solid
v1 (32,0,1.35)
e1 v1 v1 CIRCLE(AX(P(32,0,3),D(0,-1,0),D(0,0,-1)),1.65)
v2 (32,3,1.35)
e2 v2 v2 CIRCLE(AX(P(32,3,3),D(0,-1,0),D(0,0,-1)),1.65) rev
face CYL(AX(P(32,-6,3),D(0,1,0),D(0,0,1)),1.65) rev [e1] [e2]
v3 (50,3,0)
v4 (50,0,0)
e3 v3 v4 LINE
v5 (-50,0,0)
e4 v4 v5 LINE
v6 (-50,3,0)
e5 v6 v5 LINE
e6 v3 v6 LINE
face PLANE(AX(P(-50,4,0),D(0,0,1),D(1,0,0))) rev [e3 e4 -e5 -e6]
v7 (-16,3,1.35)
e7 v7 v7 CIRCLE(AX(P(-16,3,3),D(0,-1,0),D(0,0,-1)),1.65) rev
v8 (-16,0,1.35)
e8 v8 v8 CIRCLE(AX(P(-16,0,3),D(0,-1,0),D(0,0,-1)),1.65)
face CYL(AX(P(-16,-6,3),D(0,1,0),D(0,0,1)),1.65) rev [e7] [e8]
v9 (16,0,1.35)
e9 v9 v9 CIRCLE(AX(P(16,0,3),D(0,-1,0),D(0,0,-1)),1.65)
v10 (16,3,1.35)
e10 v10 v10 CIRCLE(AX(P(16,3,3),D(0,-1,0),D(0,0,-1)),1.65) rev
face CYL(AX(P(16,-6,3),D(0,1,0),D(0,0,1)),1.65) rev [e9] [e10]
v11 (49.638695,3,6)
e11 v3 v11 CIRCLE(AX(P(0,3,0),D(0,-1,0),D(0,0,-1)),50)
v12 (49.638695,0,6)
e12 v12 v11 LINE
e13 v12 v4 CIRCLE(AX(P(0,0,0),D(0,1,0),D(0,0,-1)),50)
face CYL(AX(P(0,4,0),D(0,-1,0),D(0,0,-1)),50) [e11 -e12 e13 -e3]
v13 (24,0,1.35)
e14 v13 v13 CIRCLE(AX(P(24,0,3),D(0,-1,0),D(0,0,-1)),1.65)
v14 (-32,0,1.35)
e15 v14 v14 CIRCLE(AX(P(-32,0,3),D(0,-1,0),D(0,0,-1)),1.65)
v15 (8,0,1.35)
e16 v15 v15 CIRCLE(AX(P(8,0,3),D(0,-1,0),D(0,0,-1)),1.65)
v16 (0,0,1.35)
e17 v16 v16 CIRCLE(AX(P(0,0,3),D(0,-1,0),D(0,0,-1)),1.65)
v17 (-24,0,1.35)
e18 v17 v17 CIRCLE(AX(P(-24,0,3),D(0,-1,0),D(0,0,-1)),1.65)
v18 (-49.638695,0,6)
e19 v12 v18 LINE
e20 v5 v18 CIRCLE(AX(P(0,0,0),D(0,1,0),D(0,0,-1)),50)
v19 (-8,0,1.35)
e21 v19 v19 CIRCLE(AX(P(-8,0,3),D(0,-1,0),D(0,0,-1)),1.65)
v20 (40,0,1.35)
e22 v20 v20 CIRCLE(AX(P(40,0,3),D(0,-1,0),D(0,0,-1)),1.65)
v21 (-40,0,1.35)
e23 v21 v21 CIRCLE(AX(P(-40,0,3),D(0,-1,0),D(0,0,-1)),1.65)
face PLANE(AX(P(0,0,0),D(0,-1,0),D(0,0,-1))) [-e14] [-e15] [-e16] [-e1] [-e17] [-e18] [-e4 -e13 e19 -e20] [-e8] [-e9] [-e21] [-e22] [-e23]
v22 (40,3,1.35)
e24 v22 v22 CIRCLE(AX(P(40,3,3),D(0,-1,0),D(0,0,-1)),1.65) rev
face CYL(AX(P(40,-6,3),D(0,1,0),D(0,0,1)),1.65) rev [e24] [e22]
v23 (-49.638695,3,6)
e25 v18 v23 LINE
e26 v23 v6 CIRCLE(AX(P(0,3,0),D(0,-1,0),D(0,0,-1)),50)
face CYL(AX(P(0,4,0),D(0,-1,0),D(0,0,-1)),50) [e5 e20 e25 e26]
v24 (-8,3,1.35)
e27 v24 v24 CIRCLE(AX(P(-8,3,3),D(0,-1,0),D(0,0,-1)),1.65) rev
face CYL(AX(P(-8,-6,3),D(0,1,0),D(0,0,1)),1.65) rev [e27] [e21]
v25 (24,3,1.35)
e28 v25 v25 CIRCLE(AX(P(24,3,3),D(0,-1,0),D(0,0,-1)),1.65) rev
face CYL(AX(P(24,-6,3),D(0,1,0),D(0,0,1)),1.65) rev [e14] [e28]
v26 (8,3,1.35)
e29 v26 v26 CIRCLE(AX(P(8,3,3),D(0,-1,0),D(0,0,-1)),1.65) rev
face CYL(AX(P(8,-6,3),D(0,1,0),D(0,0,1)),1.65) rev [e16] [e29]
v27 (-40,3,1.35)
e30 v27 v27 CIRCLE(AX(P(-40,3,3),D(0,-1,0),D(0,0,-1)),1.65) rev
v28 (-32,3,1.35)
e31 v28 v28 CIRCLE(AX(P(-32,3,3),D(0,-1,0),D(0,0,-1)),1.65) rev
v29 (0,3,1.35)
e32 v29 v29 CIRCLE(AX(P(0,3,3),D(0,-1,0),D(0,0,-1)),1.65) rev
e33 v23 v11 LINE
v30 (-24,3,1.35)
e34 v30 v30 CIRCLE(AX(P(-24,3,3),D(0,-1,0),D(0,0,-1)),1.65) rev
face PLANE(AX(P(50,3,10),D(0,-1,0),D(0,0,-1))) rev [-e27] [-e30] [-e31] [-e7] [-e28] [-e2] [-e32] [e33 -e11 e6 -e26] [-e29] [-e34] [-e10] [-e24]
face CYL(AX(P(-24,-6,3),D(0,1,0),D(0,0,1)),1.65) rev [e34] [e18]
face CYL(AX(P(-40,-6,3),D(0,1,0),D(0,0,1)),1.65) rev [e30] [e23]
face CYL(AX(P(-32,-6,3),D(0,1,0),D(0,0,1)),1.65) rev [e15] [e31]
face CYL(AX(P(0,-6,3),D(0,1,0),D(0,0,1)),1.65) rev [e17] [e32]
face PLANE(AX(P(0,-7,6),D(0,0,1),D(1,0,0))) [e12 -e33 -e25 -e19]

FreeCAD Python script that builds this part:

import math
import FreeCAD as App
import Part
import Sketcher

V = App.Vector
Q = App.Units.Quantity

doc = App.newDocument("Part")
body = doc.addObject("PartDesign::Body", "Body")

# Sketch on XZ plane
sketch1 = body.newObject("Sketcher::SketchObject", "Sketch")
sketch1.AttachmentSupport = (doc.getObject("XZ_Plane"), [""])
sketch1.MapMode = "FlatFace"
sketch1.addGeometry([
    Part.LineSegment(V(50, 0, 0), V(-50, 0, 0)),
    Part.ArcOfCircle(Part.Circle(V(0, 0, 0), V(0, 0, 1), 50), math.radians(0), math.radians(180)),
], False)
sketch1.addConstraint([
    Sketcher.Constraint("Coincident", 0, 1, 1, 1),
    Sketcher.Constraint("Coincident", 1, 2, 0, 2),
    Sketcher.Constraint("Horizontal", 0),
    Sketcher.Constraint("Coincident", 1, 3, -1, 1),
    Sketcher.Constraint("PointOnObject", 0, 1, -1),
    Sketcher.Constraint("Radius", 1, Q("50 mm")),
])
pad1 = body.newObject("PartDesign::Pad", "Pad")
pad1.Profile = sketch1
pad1.Length = 4
pad1.Reversed = True

# Sketch on XZ plane
sketch2 = body.newObject("Sketcher::SketchObject", "Sketch001")
sketch2.AttachmentSupport = (doc.getObject("XZ_Plane"), [""])
sketch2.MapMode = "FlatFace"
sketch2.AttachmentOffset = App.Placement(V(0, 0, -4), App.Rotation())
sketch2.addGeometry([
    Part.LineSegment(V(10, 11, 0), V(-30, 11, 0)),
    Part.LineSegment(V(-30, 11, 0), V(-30, 31, 0)),
    Part.LineSegment(V(-30, 31, 0), V(10, 31, 0)),
    Part.LineSegment(V(10, 31, 0), V(10, 11, 0)),
], False)
sketch2.addConstraint([
    Sketcher.Constraint("Coincident", 0, 2, 1, 1),
    Sketcher.Constraint("Coincident", 1, 2, 2, 1),
    Sketcher.Constraint("Coincident", 2, 2, 3, 1),
    Sketcher.Constraint("Coincident", 3, 2, 0, 1),
    Sketcher.Constraint("Horizontal", 0),
    Sketcher.Constraint("Vertical", 1),
    Sketcher.Constraint("Horizontal", 2),
    Sketcher.Constraint("Vertical", 3),
    Sketcher.Constraint("DistanceX", 0, 2, 0, 1, Q("40 mm")),
    Sketcher.Constraint("DistanceY", 1, 1, 1, 2, Q("20 mm")),
    Sketcher.Constraint("DistanceX", 0, 2, -1, 1, Q("30 mm")),
    Sketcher.Constraint("DistanceY", -1, 1, 0, 2, Q("10.623044 mm")),
])
pocket1 = body.newObject("PartDesign::Pocket", "Pocket")
pocket1.Profile = sketch2
pocket1.Length = 10
pocket1.Reversed = True

# Sketch on XZ plane
sketch3 = body.newObject("Sketcher::SketchObject", "Sketch002")
sketch3.AttachmentSupport = (doc.getObject("XZ_Plane"), [""])
sketch3.MapMode = "FlatFace"
sketch3.AttachmentOffset = App.Placement(V(0, 0, -4), App.Rotation())
sketch3.addGeometry([
    Part.Circle(V(-34.8, 15.6, 0), V(0, 0, 1), 2.2),
    Part.Circle(V(-34.8, 25.6, 0), V(0, 0, 1), 2.2),
    Part.Circle(V(14.8, 25.6, 0), V(0, 0, 1), 2.2),
    Part.Circle(V(14.8, 15.6, 0), V(0, 0, 1), 2.2),
], False)
sketch3.addConstraint([
    Sketcher.Constraint("Equal", 0, 1),
    Sketcher.Constraint("Equal", 1, 2),
    Sketcher.Constraint("Equal", 2, 3),
    Sketcher.Constraint("Horizontal", 1, 3, 2, 3),
    Sketcher.Constraint("Horizontal", 0, 3, 3, 3),
    Sketcher.Constraint("Vertical", 0, 3, 1, 3),
    Sketcher.Constraint("Vertical", 2, 3, 3, 3),
    Sketcher.Constraint("Diameter", 0, Q("4.5 mm")),
    Sketcher.Constraint("DistanceY", 0, 3, 1, 3, Q("10 mm")),
    Sketcher.Constraint("DistanceX", 1, 3, 2, 3, Q("49.5 mm")),
    Sketcher.Constraint("DistanceX", 0, 3, -1, 1, Q("34.75 mm")),
    Sketcher.Constraint("DistanceY", -1, 1, 0, 3, Q("15.623044 mm")),
])
pocket2 = body.newObject("PartDesign::Pocket", "Pocket001")
pocket2.Profile = sketch3
pocket2.Length = 10
pocket2.Reversed = True

# Sketch on XZ plane
sketch4 = body.newObject("Sketcher::SketchObject", "Sketch003")
sketch4.AttachmentSupport = (doc.getObject("XZ_Plane"), [""])
sketch4.MapMode = "FlatFace"
sketch4.AttachmentOffset = App.Placement(V(0, 0, -4), App.Rotation())
sketch4.addGeometry([
    Part.Circle(V(0, 3, 0), V(0, 0, 1), 1.6),  # 0
    Part.Circle(V(8, 3, 0), V(0, 0, 1), 1.6),  # 1
    Part.Circle(V(16, 3, 0), V(0, 0, 1), 1.6),  # 2
    Part.Circle(V(24, 3, 0), V(0, 0, 1), 1.6),  # 3
    Part.Circle(V(32, 3, 0), V(0, 0, 1), 1.6),  # 4
    Part.Circle(V(40, 3, 0), V(0, 0, 1), 1.6),  # 5
    Part.Circle(V(-40, 3, 0), V(0, 0, 1), 1.6),  # 6
    Part.Circle(V(-32, 3, 0), V(0, 0, 1), 1.6),  # 7
    Part.Circle(V(-24, 3, 0), V(0, 0, 1), 1.6),  # 8
    Part.Circle(V(-16, 3, 0), V(0, 0, 1), 1.6),  # 9
    Part.Circle(V(-8, 3, 0), V(0, 0, 1), 1.6),  # 10
], False)
sketch4.addConstraint([
    Sketcher.Constraint("Equal", 0, 1),
    Sketcher.Constraint("Equal", 1, 2),
    Sketcher.Constraint("Equal", 2, 3),
    Sketcher.Constraint("Equal", 3, 4),
    Sketcher.Constraint("Equal", 4, 5),
    Sketcher.Constraint("Equal", 5, 6),
    Sketcher.Constraint("Equal", 6, 7),
    Sketcher.Constraint("Equal", 7, 8),
    Sketcher.Constraint("Equal", 8, 9),
    Sketcher.Constraint("Equal", 9, 10),
    Sketcher.Constraint("Symmetric", 5, 3, 6, 3, -2),
    Sketcher.Constraint("Symmetric", 4, 3, 7, 3, -2),
    Sketcher.Constraint("Symmetric", 3, 3, 8, 3, -2),
    Sketcher.Constraint("Symmetric", 2, 3, 9, 3, -2),
    Sketcher.Constraint("Symmetric", 1, 3, 10, 3, -2),
    Sketcher.Constraint("PointOnObject", 0, 3, -2),
    Sketcher.Constraint("Horizontal", 0, 3, 1, 3),
    Sketcher.Constraint("Horizontal", 1, 3, 2, 3),
    Sketcher.Constraint("Horizontal", 2, 3, 3, 3),
    Sketcher.Constraint("Horizontal", 3, 3, 4, 3),
    Sketcher.Constraint("Horizontal", 4, 3, 5, 3),
    Sketcher.Constraint("Diameter", 0, Q("3.3 mm")),
    Sketcher.Constraint("DistanceY", -1, 1, 0, 3, Q("3 mm")),
    Sketcher.Constraint("DistanceX", -1, 1, 1, 3, Q("8 mm")),
    Sketcher.Constraint("DistanceX", -1, 1, 2, 3, Q("16 mm")),
    Sketcher.Constraint("DistanceX", -1, 1, 3, 3, Q("24 mm")),
    Sketcher.Constraint("DistanceX", -1, 1, 4, 3, Q("32 mm")),
    Sketcher.Constraint("DistanceX", -1, 1, 5, 3, Q("40 mm")),
])
pocket3 = body.newObject("PartDesign::Pocket", "Pocket002")
pocket3.Profile = sketch4
pocket3.Length = 10
pocket3.Reversed = True

# Sketch on XZ plane
sketch5 = body.newObject("Sketcher::SketchObject", "Sketch004")
sketch5.AttachmentSupport = (doc.getObject("XZ_Plane"), [""])
sketch5.MapMode = "FlatFace"
sketch5.AttachmentOffset = App.Placement(V(0, 0, -4), App.Rotation())
sketch5.addGeometry([
    Part.LineSegment(V(49.4, 8, 0), V(-49.4, 8, 0)),  # 0
    Part.ArcOfCircle(Part.Circle(V(0, 0, 0), V(0, 0, 1), 50), math.radians(9), math.radians(171)),  # 1
    Part.Circle(V(-34.8, 25.6, 0), V(0, 0, 1), 2.2),  # 2
    Part.Circle(V(14.8, 25.6, 0), V(0, 0, 1), 2.2),  # 3
    Part.LineSegment(V(10, 30.6, 0), V(-30, 30.6, 0)),  # 4
    Part.LineSegment(V(-30, 30.6, 0), V(-30, 10.6, 0)),  # 5
    Part.LineSegment(V(-30, 10.6, 0), V(10, 10.6, 0)),  # 6
    Part.LineSegment(V(10, 10.6, 0), V(10, 30.6, 0)),  # 7
    Part.Circle(V(-34.8, 15.6, 0), V(0, 0, 1), 2.2),  # 8
    Part.Circle(V(14.8, 15.6, 0), V(0, 0, 1), 2.2),  # 9
], False)
sketch5.addConstraint([
    Sketcher.Constraint("Coincident", 0, 1, 1, 1),
    Sketcher.Constraint("Coincident", 1, 2, 0, 2),
    Sketcher.Constraint("Coincident", 4, 2, 5, 1),
    Sketcher.Constraint("Coincident", 5, 2, 6, 1),
    Sketcher.Constraint("Coincident", 6, 2, 7, 1),
    Sketcher.Constraint("Coincident", 7, 2, 4, 1),
    Sketcher.Constraint("Horizontal", 0),
    Sketcher.Constraint("Horizontal", 4),
    Sketcher.Constraint("Vertical", 5),
    Sketcher.Constraint("Horizontal", 6),
    Sketcher.Constraint("Vertical", 7),
    Sketcher.Constraint("Coincident", 1, 3, -1, 1),
    Sketcher.Constraint("Equal", 2, 3),
    Sketcher.Constraint("Equal", 3, 8),
    Sketcher.Constraint("Equal", 8, 9),
    Sketcher.Constraint("Horizontal", 2, 3, 3, 3),
    Sketcher.Constraint("Horizontal", 8, 3, 9, 3),
    Sketcher.Constraint("Vertical", 2, 3, 8, 3),
    Sketcher.Constraint("Vertical", 3, 3, 9, 3),
    Sketcher.Constraint("Radius", 1, Q("50 mm")),
    Sketcher.Constraint("Diameter", 2, Q("4.5 mm")),
    Sketcher.Constraint("DistanceX", 4, 2, 4, 1, Q("40 mm")),
    Sketcher.Constraint("DistanceY", 5, 2, 5, 1, Q("20 mm")),
    Sketcher.Constraint("DistanceY", -1, 1, 0, 1, Q("8 mm")),
    Sketcher.Constraint("DistanceX", 4, 2, -1, 1, Q("30 mm")),
    Sketcher.Constraint("DistanceY", 8, 3, 2, 3, Q("10 mm")),
    Sketcher.Constraint("DistanceY", 2, 3, 4, 2, Q("5 mm")),
    Sketcher.Constraint("DistanceX", 2, 3, 3, 3, Q("49.5 mm")),
    Sketcher.Constraint("DistanceX", 2, 3, -1, 1, Q("34.75 mm")),
    Sketcher.Constraint("DistanceY", -1, 1, 2, 3, Q("25.623044 mm")),
])
pocket4 = body.newObject("PartDesign::Pocket", "Pocket003")
pocket4.Profile = sketch5
pocket4.Length = 10
pocket4.Reversed = True

# Sketch on XY plane
sketch6 = body.newObject("Sketcher::SketchObject", "Sketch005")
sketch6.AttachmentSupport = (doc.getObject("XY_Plane"), [""])
sketch6.MapMode = "FlatFace"
sketch6.addGeometry([
    Part.LineSegment(V(50, 4, 0), V(50, 3, 0)),
    Part.LineSegment(V(50, 3, 0), V(-50, 3, 0)),
    Part.LineSegment(V(-50, 3, 0), V(-50, 4, 0)),
    Part.LineSegment(V(-50, 4, 0), V(50, 4, 0)),
], False)
sketch6.addConstraint([
    Sketcher.Constraint("Coincident", 0, 2, 1, 1),
    Sketcher.Constraint("Coincident", 1, 2, 2, 1),
    Sketcher.Constraint("Coincident", 2, 2, 3, 1),
    Sketcher.Constraint("Coincident", 3, 2, 0, 1),
    Sketcher.Constraint("Vertical", 0),
    Sketcher.Constraint("Horizontal", 1),
    Sketcher.Constraint("Vertical", 2),
    Sketcher.Constraint("Horizontal", 3),
    Sketcher.Constraint("DistanceX", 1, 2, 1, 1, Q("100 mm")),
    Sketcher.Constraint("DistanceY", 0, 2, 0, 1, Q("1 mm")),
    Sketcher.Constraint("DistanceX", -1, 1, 0, 2, Q("50 mm")),
    Sketcher.Constraint("DistanceY", -1, 1, 0, 2, Q("3 mm")),
])
pocket5 = body.newObject("PartDesign::Pocket", "Pocket004")
pocket5.Profile = sketch6
pocket5.Length = 10
pocket5.Reversed = True

# Sketch on XZ plane
sketch7 = body.newObject("Sketcher::SketchObject", "Sketch006")
sketch7.AttachmentSupport = (doc.getObject("XZ_Plane"), [""])
sketch7.MapMode = "FlatFace"
sketch7.AttachmentOffset = App.Placement(V(0, 0, 7), App.Rotation())
sketch7.addGeometry([
    Part.LineSegment(V(49.6, 6, 0), V(-49.6, 6, 0)),
    Part.ArcOfCircle(Part.Circle(V(0, 0, 0), V(0, 0, 1), 50), math.radians(170.79), math.radians(173.11)),
    Part.LineSegment(V(-49.4, 8, 0), V(49.4, 8, 0)),
    Part.ArcOfCircle(Part.Circle(V(0, 0, 0), V(0, 0, 1), 50), math.radians(6.89), math.radians(9.21)),
], False)
sketch7.addConstraint([
    Sketcher.Constraint("Coincident", 0, 2, 1, 2),
    Sketcher.Constraint("Coincident", 1, 1, 2, 1),
    Sketcher.Constraint("Coincident", 2, 2, 3, 2),
    Sketcher.Constraint("Coincident", 3, 1, 0, 1),
    Sketcher.Constraint("Horizontal", 0),
    Sketcher.Constraint("Horizontal", 2),
    Sketcher.Constraint("Coincident", 1, 3, -1, 1),
    Sketcher.Constraint("Coincident", 3, 3, -1, 1),
    Sketcher.Constraint("Equal", 1, 3),
    Sketcher.Constraint("Radius", 1, Q("49.999998 mm")),
    Sketcher.Constraint("DistanceY", -1, 1, 0, 2, Q("6 mm")),
    Sketcher.Constraint("DistanceY", -1, 1, 1, 1, Q("8 mm")),
])
pocket6 = body.newObject("PartDesign::Pocket", "Pocket005")
pocket6.Profile = sketch7
pocket6.Length = 10

doc.recompute()
